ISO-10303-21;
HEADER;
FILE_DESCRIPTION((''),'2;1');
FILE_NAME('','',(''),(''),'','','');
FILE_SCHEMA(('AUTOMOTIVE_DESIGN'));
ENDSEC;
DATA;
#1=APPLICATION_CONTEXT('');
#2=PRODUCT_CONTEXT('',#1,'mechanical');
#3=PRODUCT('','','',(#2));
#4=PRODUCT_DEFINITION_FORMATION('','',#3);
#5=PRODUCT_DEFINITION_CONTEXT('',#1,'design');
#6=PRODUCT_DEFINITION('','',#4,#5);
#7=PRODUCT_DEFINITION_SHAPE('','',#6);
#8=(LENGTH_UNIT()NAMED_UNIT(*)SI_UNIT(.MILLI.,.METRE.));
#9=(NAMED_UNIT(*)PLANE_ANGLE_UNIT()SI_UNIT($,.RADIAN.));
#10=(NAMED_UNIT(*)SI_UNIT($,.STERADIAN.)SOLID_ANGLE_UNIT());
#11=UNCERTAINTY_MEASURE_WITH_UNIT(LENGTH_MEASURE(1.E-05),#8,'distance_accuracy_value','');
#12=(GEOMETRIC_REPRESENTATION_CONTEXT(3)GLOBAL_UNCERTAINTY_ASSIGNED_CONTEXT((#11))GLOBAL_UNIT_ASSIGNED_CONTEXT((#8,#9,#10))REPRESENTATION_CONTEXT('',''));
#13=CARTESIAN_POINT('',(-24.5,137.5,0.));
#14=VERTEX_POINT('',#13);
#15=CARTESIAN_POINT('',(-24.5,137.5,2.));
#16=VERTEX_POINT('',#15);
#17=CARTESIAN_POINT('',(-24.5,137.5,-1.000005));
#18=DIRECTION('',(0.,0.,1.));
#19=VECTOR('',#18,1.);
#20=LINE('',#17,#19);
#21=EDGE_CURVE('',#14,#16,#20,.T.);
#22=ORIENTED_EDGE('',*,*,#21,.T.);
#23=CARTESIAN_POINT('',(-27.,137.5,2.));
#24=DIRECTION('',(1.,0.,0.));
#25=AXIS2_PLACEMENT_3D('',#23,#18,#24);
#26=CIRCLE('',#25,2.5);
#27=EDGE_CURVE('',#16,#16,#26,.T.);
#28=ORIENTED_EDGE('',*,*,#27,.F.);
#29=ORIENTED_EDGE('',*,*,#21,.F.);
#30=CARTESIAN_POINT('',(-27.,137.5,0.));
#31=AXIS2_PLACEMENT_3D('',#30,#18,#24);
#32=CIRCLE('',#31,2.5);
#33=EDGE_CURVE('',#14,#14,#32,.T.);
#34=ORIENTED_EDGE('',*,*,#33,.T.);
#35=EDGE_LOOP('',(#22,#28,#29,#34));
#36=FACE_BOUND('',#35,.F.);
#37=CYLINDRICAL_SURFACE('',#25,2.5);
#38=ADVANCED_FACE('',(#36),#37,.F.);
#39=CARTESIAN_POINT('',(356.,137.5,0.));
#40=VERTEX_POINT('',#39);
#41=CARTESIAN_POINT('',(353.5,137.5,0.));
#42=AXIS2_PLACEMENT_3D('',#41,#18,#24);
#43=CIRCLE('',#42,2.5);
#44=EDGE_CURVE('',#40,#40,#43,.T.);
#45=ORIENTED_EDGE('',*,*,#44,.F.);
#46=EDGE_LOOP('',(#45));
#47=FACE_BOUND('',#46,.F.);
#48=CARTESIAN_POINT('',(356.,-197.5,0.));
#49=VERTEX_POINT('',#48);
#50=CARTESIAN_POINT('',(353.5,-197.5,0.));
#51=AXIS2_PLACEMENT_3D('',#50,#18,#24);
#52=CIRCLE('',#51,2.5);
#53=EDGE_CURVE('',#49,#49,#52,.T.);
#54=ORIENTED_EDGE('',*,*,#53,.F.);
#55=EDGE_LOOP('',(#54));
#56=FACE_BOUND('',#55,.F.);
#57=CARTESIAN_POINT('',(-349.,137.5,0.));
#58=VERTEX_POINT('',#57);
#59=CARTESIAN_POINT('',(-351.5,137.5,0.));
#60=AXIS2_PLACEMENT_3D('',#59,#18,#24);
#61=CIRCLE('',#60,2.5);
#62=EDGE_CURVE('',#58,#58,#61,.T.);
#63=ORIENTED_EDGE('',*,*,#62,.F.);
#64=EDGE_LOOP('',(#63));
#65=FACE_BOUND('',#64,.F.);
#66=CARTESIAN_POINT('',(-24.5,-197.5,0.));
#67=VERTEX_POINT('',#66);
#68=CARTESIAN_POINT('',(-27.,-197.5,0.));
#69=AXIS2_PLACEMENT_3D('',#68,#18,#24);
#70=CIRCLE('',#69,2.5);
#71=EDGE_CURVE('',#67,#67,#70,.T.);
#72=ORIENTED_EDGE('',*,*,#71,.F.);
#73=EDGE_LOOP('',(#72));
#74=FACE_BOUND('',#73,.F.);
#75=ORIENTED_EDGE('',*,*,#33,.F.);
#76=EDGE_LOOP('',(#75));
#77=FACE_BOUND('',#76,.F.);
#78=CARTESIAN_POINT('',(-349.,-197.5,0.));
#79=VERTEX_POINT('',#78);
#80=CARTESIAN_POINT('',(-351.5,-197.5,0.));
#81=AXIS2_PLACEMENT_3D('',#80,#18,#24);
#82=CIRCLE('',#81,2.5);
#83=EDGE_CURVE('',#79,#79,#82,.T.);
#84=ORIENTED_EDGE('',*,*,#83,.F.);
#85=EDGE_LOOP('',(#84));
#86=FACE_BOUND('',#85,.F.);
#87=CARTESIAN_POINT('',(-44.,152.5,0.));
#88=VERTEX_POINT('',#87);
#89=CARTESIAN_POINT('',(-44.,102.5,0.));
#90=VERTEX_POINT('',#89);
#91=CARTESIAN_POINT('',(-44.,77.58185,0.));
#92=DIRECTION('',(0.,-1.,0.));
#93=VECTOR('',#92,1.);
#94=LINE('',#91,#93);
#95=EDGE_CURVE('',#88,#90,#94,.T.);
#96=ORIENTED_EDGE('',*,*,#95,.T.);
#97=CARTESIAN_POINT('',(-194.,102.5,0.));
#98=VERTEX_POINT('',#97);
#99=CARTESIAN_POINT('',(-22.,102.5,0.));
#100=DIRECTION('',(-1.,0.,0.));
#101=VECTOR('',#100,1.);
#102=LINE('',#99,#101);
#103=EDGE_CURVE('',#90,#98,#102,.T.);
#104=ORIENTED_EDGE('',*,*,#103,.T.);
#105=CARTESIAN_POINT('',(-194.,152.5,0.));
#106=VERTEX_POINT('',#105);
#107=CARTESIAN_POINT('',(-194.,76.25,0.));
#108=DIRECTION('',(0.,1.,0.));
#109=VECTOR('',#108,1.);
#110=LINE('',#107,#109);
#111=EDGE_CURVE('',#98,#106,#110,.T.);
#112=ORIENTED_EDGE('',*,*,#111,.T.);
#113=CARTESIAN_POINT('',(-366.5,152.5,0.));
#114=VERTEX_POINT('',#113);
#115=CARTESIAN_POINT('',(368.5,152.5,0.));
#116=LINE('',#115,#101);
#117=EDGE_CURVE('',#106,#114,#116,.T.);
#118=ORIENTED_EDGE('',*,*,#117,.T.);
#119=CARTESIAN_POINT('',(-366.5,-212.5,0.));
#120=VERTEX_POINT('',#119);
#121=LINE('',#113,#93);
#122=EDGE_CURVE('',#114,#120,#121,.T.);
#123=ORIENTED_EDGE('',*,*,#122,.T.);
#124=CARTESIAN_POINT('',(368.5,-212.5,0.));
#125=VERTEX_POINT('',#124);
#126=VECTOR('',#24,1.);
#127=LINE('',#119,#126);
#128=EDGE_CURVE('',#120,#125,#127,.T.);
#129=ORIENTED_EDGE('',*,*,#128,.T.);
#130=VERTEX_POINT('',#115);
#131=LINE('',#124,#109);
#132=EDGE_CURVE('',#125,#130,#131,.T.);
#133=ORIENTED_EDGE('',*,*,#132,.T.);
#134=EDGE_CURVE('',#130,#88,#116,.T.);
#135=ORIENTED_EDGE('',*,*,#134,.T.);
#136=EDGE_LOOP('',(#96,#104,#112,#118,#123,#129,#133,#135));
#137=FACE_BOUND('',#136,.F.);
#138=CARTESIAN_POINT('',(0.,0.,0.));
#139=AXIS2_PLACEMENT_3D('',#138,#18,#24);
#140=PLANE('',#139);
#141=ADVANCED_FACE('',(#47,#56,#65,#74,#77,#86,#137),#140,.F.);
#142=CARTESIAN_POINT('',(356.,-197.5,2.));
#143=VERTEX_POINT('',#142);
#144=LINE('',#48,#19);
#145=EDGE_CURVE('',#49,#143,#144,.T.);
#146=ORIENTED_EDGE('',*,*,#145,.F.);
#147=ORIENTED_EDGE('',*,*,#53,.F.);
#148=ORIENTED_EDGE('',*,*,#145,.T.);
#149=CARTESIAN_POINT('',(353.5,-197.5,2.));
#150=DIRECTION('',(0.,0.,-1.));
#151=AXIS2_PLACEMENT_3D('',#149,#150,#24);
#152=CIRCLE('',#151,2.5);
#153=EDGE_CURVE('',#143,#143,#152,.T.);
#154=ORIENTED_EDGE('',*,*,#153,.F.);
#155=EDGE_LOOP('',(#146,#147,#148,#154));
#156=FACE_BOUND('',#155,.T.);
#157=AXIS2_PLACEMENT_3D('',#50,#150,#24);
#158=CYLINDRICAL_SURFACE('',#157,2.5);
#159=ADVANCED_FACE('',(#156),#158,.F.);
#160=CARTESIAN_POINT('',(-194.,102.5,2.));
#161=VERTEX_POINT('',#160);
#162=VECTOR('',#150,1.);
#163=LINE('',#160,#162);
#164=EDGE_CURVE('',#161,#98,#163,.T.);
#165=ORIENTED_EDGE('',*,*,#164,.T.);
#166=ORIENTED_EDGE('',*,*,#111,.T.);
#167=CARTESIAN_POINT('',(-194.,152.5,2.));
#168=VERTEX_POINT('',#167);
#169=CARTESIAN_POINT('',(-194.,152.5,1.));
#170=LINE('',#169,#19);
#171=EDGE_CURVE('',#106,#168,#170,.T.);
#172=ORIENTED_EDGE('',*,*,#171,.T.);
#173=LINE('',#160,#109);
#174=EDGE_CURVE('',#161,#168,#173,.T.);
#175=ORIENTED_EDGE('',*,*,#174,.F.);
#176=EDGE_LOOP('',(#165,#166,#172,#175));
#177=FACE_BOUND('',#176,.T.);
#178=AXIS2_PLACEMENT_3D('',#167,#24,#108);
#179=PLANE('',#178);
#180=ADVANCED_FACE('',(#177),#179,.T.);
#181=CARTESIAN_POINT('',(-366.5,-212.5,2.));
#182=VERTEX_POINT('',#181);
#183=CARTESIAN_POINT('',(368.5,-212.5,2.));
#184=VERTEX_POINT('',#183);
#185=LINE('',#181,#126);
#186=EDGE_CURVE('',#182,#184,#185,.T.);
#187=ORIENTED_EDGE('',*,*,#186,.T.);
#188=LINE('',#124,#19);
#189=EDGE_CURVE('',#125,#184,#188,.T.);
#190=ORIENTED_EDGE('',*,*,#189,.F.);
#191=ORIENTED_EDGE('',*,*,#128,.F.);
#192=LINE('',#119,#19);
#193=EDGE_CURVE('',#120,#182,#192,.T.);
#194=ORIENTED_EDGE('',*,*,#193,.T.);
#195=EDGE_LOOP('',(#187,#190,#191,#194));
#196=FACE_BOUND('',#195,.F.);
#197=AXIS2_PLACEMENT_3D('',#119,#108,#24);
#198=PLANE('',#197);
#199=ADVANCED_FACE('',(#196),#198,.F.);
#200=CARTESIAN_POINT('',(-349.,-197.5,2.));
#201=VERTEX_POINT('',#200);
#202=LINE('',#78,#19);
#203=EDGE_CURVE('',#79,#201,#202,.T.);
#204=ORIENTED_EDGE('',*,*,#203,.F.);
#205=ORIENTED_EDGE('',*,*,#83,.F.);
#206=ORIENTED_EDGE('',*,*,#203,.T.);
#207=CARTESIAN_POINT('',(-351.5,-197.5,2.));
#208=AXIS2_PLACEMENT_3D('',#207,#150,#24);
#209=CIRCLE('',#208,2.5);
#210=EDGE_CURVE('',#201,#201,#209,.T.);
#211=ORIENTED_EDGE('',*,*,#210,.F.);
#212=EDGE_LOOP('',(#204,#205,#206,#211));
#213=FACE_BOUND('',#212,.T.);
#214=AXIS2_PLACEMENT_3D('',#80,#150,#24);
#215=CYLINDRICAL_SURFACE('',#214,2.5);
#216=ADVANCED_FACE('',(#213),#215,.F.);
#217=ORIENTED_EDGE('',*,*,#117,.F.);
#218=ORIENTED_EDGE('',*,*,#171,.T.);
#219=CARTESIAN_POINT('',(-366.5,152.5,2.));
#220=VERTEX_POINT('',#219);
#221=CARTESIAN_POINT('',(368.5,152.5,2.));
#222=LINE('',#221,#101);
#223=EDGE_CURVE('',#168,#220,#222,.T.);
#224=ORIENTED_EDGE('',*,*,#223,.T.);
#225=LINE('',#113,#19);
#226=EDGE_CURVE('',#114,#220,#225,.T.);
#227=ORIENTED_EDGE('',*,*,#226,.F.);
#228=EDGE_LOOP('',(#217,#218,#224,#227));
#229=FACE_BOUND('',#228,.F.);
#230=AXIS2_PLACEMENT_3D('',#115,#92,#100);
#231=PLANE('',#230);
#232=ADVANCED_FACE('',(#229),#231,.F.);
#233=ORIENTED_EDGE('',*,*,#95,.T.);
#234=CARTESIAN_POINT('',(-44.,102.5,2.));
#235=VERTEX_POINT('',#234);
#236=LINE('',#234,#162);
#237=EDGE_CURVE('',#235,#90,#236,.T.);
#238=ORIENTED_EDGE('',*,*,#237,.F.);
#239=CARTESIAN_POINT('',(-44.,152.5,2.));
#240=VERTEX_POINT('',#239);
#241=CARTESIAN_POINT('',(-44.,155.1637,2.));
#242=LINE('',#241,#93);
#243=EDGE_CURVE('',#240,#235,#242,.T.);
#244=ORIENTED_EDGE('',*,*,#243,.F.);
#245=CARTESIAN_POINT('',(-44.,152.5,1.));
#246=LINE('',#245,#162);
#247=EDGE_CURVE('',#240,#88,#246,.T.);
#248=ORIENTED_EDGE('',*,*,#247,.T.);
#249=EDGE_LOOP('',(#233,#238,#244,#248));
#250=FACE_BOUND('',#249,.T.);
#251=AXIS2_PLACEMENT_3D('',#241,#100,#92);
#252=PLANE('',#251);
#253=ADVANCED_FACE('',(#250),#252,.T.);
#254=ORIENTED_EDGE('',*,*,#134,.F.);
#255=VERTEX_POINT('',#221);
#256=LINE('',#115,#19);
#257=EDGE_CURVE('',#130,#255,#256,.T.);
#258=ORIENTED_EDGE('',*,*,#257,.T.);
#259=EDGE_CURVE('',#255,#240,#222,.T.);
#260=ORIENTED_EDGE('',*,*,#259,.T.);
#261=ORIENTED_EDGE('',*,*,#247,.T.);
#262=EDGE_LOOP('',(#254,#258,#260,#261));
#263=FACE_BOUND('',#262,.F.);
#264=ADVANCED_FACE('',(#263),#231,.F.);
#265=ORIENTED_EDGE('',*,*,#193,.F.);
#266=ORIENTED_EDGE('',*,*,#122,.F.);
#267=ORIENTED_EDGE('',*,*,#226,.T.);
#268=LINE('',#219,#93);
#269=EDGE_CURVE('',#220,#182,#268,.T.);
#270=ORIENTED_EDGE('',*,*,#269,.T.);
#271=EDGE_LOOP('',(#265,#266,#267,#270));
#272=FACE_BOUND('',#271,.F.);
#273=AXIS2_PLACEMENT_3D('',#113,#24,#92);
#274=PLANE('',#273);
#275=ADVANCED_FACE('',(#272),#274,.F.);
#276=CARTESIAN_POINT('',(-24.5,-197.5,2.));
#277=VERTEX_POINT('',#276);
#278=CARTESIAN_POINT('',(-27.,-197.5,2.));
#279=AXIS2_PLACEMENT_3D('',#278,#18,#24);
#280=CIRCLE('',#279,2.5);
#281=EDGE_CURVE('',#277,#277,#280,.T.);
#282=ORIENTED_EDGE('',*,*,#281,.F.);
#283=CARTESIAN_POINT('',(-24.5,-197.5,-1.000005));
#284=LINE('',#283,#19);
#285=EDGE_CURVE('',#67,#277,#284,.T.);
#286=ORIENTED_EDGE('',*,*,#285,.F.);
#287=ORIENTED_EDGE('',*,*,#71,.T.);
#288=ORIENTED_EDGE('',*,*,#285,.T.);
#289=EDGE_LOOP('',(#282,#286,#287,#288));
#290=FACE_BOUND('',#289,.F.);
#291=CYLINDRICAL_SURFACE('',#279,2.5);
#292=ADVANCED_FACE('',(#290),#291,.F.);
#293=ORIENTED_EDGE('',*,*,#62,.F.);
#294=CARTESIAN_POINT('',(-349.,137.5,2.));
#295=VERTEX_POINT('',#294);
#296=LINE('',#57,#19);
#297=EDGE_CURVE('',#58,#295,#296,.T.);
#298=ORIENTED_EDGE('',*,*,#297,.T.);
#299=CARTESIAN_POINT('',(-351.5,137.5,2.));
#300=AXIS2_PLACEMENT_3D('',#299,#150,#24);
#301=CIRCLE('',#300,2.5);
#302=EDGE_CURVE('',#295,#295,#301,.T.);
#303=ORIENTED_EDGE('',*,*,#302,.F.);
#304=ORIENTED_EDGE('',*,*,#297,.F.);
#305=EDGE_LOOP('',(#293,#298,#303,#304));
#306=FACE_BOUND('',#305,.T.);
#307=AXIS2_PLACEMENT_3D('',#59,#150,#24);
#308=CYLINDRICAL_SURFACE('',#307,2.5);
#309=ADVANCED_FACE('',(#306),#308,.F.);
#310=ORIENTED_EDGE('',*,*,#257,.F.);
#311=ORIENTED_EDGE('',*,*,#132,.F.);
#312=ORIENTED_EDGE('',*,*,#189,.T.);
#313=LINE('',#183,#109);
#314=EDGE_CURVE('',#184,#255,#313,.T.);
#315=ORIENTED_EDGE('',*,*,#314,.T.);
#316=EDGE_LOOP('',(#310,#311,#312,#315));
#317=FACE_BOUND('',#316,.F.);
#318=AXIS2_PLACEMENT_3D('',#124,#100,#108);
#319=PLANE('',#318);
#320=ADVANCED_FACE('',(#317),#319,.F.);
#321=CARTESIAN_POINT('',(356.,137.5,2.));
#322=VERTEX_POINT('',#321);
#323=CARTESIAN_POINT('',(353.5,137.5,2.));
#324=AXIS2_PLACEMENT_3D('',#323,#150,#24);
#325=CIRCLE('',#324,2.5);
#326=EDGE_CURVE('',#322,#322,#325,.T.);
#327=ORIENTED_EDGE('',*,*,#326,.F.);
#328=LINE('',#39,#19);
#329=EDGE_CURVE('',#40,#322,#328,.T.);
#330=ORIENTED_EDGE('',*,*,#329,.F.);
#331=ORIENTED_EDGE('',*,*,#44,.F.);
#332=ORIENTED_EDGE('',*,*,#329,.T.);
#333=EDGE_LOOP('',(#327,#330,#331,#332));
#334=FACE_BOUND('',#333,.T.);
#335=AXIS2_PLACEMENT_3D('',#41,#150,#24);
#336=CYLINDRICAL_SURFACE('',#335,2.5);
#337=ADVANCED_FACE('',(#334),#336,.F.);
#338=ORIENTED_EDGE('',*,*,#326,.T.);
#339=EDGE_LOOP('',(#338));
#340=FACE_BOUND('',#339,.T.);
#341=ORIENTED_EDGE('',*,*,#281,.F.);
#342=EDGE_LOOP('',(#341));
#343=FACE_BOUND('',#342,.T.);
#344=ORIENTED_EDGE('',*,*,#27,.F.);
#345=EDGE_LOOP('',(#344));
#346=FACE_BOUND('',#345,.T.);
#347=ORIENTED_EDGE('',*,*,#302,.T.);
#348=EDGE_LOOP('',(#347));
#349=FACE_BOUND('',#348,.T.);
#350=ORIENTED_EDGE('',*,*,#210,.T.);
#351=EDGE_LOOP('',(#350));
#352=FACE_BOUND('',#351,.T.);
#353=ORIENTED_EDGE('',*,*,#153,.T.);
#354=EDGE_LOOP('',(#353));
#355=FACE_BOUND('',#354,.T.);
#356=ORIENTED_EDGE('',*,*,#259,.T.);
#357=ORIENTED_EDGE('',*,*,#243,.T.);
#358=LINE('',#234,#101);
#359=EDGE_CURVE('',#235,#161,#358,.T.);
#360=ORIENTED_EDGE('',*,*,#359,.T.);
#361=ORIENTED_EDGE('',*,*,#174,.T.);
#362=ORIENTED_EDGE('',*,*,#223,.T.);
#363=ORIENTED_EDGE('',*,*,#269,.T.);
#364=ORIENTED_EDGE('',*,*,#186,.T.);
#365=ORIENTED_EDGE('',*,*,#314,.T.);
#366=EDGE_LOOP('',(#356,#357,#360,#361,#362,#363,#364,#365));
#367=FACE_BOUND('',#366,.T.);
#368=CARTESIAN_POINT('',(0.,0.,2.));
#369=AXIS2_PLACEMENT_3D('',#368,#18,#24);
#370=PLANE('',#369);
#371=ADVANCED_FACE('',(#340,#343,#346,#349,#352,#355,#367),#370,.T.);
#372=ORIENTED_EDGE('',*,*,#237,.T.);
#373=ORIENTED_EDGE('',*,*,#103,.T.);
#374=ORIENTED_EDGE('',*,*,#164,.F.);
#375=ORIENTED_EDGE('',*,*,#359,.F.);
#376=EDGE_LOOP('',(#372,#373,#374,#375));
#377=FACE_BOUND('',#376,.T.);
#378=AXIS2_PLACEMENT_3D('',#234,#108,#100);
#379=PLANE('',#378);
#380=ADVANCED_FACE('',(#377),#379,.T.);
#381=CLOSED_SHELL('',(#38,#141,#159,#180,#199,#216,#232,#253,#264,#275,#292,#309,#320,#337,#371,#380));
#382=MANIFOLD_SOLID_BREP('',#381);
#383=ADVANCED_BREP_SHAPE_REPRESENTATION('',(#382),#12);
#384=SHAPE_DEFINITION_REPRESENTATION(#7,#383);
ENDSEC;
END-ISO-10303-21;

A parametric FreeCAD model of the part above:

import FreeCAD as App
import Part
import Sketcher
from FreeCAD import Vector


def add_polygon(sketch, points):
    """Adds a closed chain of lines whose ends are joined by coincident constraints."""
    first, n = sketch.GeometryCount, len(points)
    for a, b in zip(points, points[1:] + points[:1]):
        sketch.addGeometry(Part.LineSegment(App.Vector(*a, 0), App.Vector(*b, 0)), False)
    for i in range(n):
        sketch.addConstraint(Sketcher.Constraint("Coincident", first + i, 2, first + (i + 1) % n, 1))

doc = App.newDocument("Part")
body = doc.addObject("PartDesign::Body", "Body")

# Sketch on XY plane
sketch1 = doc.addObject("Sketcher::SketchObject", "Sketch")
body.addObject(sketch1)
sketch1.AttachmentSupport = (doc.XY_Plane, [""])
sketch1.MapMode = "FlatFace"
add_polygon(sketch1, [(-366.5, 152.5), (-366.5, -212.5), (368.5, -212.5), (368.5, 152.5)])  # lines 0-3
sketch1.addGeometry(Part.Circle(Vector(-351.5, -197.5, 0), Vector(0, 0, 1), 2.5), False)  # 4
sketch1.addGeometry(Part.Circle(Vector(353.5, 137.5, 0), Vector(0, 0, 1), 2.5), False)  # 5
sketch1.addGeometry(Part.Circle(Vector(-351.5, 137.5, 0), Vector(0, 0, 1), 2.5), False)  # 6
sketch1.addGeometry(Part.Circle(Vector(353.5, -197.5, 0), Vector(0, 0, 1), 2.5), False)  # 7
sketch1.addConstraint(Sketcher.Constraint("Vertical", 0))
sketch1.addConstraint(Sketcher.Constraint("Horizontal", 1))
sketch1.addConstraint(Sketcher.Constraint("Vertical", 2))
sketch1.addConstraint(Sketcher.Constraint("Horizontal", 3))
sketch1.addConstraint(Sketcher.Constraint("Equal", 4, 5))
sketch1.addConstraint(Sketcher.Constraint("Equal", 5, 6))
sketch1.addConstraint(Sketcher.Constraint("Equal", 6, 7))
sketch1.addConstraint(Sketcher.Constraint("Horizontal", 5, 3, 6, 3))
sketch1.addConstraint(Sketcher.Constraint("Horizontal", 4, 3, 7, 3))
sketch1.addConstraint(Sketcher.Constraint("Vertical", 4, 3, 6, 3))
sketch1.addConstraint(Sketcher.Constraint("Vertical", 5, 3, 7, 3))
sketch1.addConstraint(Sketcher.Constraint("Diameter", 4, 5.0))
sketch1.addConstraint(Sketcher.Constraint("DistanceX", 1, 1, 1, 2, 735.0))
sketch1.addConstraint(Sketcher.Constraint("DistanceY", 0, 2, 0, 1, 365.0))
sketch1.addConstraint(Sketcher.Constraint("DistanceX", 4, 3, 5, 3, 705.0))
sketch1.addConstraint(Sketcher.Constraint("DistanceY", 4, 3, 5, 3, 335.0))
sketch1.addConstraint(Sketcher.Constraint("DistanceX", 0, 2, 4, 3, 15.0))
sketch1.addConstraint(Sketcher.Constraint("DistanceY", 0, 2, 4, 3, 15.0))
sketch1.addConstraint(Sketcher.Constraint("DistanceX", 4, 3, -1, 1, 351.5))
sketch1.addConstraint(Sketcher.Constraint("DistanceY", 4, 3, -1, 1, 197.5))
pad1 = doc.addObject("PartDesign::Pad", "Pad")
body.addObject(pad1)
pad1.Profile = sketch1
pad1.Length = 2

# Sketch on XY plane
sketch2 = doc.addObject("Sketcher::SketchObject", "Sketch001")
body.addObject(sketch2)
sketch2.AttachmentSupport = (doc.XY_Plane, [""])
sketch2.MapMode = "FlatFace"
sketch2.AttachmentOffset = App.Placement(Vector(0, 0, 2), App.Rotation())
add_polygon(sketch2, [(-44, 155), (-194, 155), (-194, 102), (-44, 102)])  # lines 0-3
sketch2.addConstraint(Sketcher.Constraint("Horizontal", 0))
sketch2.addConstraint(Sketcher.Constraint("Vertical", 1))
sketch2.addConstraint(Sketcher.Constraint("Horizontal", 2))
sketch2.addConstraint(Sketcher.Constraint("Vertical", 3))
sketch2.addConstraint(Sketcher.Constraint("DistanceX", 0, 2, 0, 1, 150.0))
sketch2.addConstraint(Sketcher.Constraint("DistanceX", 0, 2, -1, 1, 194.0))
sketch2.addConstraint(Sketcher.Constraint("DistanceY", -1, 1, 1, 2, 102.5))
sketch2.addConstraint(Sketcher.Constraint("DistanceY", 1, 2, 1, 1, 52.6637))
pocket1 = doc.addObject("PartDesign::Pocket", "Pocket")
body.addObject(pocket1)
pocket1.Profile = sketch2
pocket1.Type = "ThroughAll"

# Sketch on XY plane
sketch3 = doc.addObject("Sketcher::SketchObject", "Sketch002")
body.addObject(sketch3)
sketch3.AttachmentSupport = (doc.XY_Plane, [""])
sketch3.MapMode = "FlatFace"
sketch3.AttachmentOffset = App.Placement(Vector(0, 0, 2), App.Rotation())
sketch3.addGeometry(Part.Circle(Vector(-27, 137.5, 0), Vector(0, 0, 1), 2.5), False)
sketch3.addGeometry(Part.Circle(Vector(-27, -197.5, 0), Vector(0, 0, 1), 2.5), False)
sketch3.addConstraint(Sketcher.Constraint("Equal", 0, 1))
sketch3.addConstraint(Sketcher.Constraint("Vertical", 0, 3, 1, 3))
sketch3.addConstraint(Sketcher.Constraint("Diameter", 0, 5.0))
sketch3.addConstraint(Sketcher.Constraint("DistanceX", 0, 3, -1, 1, 27.0))
sketch3.addConstraint(Sketcher.Constraint("DistanceY", 1, 3, 0, 3, 335.0))
sketch3.addConstraint(Sketcher.Constraint("DistanceY", -1, 1, 0, 3, 137.5))
pocket2 = doc.addObject("PartDesign::Pocket", "Pocket001")
body.addObject(pocket2)
pocket2.Profile = sketch3
pocket2.Type = "ThroughAll"
pocket2.Midplane = True

doc.recompute()
